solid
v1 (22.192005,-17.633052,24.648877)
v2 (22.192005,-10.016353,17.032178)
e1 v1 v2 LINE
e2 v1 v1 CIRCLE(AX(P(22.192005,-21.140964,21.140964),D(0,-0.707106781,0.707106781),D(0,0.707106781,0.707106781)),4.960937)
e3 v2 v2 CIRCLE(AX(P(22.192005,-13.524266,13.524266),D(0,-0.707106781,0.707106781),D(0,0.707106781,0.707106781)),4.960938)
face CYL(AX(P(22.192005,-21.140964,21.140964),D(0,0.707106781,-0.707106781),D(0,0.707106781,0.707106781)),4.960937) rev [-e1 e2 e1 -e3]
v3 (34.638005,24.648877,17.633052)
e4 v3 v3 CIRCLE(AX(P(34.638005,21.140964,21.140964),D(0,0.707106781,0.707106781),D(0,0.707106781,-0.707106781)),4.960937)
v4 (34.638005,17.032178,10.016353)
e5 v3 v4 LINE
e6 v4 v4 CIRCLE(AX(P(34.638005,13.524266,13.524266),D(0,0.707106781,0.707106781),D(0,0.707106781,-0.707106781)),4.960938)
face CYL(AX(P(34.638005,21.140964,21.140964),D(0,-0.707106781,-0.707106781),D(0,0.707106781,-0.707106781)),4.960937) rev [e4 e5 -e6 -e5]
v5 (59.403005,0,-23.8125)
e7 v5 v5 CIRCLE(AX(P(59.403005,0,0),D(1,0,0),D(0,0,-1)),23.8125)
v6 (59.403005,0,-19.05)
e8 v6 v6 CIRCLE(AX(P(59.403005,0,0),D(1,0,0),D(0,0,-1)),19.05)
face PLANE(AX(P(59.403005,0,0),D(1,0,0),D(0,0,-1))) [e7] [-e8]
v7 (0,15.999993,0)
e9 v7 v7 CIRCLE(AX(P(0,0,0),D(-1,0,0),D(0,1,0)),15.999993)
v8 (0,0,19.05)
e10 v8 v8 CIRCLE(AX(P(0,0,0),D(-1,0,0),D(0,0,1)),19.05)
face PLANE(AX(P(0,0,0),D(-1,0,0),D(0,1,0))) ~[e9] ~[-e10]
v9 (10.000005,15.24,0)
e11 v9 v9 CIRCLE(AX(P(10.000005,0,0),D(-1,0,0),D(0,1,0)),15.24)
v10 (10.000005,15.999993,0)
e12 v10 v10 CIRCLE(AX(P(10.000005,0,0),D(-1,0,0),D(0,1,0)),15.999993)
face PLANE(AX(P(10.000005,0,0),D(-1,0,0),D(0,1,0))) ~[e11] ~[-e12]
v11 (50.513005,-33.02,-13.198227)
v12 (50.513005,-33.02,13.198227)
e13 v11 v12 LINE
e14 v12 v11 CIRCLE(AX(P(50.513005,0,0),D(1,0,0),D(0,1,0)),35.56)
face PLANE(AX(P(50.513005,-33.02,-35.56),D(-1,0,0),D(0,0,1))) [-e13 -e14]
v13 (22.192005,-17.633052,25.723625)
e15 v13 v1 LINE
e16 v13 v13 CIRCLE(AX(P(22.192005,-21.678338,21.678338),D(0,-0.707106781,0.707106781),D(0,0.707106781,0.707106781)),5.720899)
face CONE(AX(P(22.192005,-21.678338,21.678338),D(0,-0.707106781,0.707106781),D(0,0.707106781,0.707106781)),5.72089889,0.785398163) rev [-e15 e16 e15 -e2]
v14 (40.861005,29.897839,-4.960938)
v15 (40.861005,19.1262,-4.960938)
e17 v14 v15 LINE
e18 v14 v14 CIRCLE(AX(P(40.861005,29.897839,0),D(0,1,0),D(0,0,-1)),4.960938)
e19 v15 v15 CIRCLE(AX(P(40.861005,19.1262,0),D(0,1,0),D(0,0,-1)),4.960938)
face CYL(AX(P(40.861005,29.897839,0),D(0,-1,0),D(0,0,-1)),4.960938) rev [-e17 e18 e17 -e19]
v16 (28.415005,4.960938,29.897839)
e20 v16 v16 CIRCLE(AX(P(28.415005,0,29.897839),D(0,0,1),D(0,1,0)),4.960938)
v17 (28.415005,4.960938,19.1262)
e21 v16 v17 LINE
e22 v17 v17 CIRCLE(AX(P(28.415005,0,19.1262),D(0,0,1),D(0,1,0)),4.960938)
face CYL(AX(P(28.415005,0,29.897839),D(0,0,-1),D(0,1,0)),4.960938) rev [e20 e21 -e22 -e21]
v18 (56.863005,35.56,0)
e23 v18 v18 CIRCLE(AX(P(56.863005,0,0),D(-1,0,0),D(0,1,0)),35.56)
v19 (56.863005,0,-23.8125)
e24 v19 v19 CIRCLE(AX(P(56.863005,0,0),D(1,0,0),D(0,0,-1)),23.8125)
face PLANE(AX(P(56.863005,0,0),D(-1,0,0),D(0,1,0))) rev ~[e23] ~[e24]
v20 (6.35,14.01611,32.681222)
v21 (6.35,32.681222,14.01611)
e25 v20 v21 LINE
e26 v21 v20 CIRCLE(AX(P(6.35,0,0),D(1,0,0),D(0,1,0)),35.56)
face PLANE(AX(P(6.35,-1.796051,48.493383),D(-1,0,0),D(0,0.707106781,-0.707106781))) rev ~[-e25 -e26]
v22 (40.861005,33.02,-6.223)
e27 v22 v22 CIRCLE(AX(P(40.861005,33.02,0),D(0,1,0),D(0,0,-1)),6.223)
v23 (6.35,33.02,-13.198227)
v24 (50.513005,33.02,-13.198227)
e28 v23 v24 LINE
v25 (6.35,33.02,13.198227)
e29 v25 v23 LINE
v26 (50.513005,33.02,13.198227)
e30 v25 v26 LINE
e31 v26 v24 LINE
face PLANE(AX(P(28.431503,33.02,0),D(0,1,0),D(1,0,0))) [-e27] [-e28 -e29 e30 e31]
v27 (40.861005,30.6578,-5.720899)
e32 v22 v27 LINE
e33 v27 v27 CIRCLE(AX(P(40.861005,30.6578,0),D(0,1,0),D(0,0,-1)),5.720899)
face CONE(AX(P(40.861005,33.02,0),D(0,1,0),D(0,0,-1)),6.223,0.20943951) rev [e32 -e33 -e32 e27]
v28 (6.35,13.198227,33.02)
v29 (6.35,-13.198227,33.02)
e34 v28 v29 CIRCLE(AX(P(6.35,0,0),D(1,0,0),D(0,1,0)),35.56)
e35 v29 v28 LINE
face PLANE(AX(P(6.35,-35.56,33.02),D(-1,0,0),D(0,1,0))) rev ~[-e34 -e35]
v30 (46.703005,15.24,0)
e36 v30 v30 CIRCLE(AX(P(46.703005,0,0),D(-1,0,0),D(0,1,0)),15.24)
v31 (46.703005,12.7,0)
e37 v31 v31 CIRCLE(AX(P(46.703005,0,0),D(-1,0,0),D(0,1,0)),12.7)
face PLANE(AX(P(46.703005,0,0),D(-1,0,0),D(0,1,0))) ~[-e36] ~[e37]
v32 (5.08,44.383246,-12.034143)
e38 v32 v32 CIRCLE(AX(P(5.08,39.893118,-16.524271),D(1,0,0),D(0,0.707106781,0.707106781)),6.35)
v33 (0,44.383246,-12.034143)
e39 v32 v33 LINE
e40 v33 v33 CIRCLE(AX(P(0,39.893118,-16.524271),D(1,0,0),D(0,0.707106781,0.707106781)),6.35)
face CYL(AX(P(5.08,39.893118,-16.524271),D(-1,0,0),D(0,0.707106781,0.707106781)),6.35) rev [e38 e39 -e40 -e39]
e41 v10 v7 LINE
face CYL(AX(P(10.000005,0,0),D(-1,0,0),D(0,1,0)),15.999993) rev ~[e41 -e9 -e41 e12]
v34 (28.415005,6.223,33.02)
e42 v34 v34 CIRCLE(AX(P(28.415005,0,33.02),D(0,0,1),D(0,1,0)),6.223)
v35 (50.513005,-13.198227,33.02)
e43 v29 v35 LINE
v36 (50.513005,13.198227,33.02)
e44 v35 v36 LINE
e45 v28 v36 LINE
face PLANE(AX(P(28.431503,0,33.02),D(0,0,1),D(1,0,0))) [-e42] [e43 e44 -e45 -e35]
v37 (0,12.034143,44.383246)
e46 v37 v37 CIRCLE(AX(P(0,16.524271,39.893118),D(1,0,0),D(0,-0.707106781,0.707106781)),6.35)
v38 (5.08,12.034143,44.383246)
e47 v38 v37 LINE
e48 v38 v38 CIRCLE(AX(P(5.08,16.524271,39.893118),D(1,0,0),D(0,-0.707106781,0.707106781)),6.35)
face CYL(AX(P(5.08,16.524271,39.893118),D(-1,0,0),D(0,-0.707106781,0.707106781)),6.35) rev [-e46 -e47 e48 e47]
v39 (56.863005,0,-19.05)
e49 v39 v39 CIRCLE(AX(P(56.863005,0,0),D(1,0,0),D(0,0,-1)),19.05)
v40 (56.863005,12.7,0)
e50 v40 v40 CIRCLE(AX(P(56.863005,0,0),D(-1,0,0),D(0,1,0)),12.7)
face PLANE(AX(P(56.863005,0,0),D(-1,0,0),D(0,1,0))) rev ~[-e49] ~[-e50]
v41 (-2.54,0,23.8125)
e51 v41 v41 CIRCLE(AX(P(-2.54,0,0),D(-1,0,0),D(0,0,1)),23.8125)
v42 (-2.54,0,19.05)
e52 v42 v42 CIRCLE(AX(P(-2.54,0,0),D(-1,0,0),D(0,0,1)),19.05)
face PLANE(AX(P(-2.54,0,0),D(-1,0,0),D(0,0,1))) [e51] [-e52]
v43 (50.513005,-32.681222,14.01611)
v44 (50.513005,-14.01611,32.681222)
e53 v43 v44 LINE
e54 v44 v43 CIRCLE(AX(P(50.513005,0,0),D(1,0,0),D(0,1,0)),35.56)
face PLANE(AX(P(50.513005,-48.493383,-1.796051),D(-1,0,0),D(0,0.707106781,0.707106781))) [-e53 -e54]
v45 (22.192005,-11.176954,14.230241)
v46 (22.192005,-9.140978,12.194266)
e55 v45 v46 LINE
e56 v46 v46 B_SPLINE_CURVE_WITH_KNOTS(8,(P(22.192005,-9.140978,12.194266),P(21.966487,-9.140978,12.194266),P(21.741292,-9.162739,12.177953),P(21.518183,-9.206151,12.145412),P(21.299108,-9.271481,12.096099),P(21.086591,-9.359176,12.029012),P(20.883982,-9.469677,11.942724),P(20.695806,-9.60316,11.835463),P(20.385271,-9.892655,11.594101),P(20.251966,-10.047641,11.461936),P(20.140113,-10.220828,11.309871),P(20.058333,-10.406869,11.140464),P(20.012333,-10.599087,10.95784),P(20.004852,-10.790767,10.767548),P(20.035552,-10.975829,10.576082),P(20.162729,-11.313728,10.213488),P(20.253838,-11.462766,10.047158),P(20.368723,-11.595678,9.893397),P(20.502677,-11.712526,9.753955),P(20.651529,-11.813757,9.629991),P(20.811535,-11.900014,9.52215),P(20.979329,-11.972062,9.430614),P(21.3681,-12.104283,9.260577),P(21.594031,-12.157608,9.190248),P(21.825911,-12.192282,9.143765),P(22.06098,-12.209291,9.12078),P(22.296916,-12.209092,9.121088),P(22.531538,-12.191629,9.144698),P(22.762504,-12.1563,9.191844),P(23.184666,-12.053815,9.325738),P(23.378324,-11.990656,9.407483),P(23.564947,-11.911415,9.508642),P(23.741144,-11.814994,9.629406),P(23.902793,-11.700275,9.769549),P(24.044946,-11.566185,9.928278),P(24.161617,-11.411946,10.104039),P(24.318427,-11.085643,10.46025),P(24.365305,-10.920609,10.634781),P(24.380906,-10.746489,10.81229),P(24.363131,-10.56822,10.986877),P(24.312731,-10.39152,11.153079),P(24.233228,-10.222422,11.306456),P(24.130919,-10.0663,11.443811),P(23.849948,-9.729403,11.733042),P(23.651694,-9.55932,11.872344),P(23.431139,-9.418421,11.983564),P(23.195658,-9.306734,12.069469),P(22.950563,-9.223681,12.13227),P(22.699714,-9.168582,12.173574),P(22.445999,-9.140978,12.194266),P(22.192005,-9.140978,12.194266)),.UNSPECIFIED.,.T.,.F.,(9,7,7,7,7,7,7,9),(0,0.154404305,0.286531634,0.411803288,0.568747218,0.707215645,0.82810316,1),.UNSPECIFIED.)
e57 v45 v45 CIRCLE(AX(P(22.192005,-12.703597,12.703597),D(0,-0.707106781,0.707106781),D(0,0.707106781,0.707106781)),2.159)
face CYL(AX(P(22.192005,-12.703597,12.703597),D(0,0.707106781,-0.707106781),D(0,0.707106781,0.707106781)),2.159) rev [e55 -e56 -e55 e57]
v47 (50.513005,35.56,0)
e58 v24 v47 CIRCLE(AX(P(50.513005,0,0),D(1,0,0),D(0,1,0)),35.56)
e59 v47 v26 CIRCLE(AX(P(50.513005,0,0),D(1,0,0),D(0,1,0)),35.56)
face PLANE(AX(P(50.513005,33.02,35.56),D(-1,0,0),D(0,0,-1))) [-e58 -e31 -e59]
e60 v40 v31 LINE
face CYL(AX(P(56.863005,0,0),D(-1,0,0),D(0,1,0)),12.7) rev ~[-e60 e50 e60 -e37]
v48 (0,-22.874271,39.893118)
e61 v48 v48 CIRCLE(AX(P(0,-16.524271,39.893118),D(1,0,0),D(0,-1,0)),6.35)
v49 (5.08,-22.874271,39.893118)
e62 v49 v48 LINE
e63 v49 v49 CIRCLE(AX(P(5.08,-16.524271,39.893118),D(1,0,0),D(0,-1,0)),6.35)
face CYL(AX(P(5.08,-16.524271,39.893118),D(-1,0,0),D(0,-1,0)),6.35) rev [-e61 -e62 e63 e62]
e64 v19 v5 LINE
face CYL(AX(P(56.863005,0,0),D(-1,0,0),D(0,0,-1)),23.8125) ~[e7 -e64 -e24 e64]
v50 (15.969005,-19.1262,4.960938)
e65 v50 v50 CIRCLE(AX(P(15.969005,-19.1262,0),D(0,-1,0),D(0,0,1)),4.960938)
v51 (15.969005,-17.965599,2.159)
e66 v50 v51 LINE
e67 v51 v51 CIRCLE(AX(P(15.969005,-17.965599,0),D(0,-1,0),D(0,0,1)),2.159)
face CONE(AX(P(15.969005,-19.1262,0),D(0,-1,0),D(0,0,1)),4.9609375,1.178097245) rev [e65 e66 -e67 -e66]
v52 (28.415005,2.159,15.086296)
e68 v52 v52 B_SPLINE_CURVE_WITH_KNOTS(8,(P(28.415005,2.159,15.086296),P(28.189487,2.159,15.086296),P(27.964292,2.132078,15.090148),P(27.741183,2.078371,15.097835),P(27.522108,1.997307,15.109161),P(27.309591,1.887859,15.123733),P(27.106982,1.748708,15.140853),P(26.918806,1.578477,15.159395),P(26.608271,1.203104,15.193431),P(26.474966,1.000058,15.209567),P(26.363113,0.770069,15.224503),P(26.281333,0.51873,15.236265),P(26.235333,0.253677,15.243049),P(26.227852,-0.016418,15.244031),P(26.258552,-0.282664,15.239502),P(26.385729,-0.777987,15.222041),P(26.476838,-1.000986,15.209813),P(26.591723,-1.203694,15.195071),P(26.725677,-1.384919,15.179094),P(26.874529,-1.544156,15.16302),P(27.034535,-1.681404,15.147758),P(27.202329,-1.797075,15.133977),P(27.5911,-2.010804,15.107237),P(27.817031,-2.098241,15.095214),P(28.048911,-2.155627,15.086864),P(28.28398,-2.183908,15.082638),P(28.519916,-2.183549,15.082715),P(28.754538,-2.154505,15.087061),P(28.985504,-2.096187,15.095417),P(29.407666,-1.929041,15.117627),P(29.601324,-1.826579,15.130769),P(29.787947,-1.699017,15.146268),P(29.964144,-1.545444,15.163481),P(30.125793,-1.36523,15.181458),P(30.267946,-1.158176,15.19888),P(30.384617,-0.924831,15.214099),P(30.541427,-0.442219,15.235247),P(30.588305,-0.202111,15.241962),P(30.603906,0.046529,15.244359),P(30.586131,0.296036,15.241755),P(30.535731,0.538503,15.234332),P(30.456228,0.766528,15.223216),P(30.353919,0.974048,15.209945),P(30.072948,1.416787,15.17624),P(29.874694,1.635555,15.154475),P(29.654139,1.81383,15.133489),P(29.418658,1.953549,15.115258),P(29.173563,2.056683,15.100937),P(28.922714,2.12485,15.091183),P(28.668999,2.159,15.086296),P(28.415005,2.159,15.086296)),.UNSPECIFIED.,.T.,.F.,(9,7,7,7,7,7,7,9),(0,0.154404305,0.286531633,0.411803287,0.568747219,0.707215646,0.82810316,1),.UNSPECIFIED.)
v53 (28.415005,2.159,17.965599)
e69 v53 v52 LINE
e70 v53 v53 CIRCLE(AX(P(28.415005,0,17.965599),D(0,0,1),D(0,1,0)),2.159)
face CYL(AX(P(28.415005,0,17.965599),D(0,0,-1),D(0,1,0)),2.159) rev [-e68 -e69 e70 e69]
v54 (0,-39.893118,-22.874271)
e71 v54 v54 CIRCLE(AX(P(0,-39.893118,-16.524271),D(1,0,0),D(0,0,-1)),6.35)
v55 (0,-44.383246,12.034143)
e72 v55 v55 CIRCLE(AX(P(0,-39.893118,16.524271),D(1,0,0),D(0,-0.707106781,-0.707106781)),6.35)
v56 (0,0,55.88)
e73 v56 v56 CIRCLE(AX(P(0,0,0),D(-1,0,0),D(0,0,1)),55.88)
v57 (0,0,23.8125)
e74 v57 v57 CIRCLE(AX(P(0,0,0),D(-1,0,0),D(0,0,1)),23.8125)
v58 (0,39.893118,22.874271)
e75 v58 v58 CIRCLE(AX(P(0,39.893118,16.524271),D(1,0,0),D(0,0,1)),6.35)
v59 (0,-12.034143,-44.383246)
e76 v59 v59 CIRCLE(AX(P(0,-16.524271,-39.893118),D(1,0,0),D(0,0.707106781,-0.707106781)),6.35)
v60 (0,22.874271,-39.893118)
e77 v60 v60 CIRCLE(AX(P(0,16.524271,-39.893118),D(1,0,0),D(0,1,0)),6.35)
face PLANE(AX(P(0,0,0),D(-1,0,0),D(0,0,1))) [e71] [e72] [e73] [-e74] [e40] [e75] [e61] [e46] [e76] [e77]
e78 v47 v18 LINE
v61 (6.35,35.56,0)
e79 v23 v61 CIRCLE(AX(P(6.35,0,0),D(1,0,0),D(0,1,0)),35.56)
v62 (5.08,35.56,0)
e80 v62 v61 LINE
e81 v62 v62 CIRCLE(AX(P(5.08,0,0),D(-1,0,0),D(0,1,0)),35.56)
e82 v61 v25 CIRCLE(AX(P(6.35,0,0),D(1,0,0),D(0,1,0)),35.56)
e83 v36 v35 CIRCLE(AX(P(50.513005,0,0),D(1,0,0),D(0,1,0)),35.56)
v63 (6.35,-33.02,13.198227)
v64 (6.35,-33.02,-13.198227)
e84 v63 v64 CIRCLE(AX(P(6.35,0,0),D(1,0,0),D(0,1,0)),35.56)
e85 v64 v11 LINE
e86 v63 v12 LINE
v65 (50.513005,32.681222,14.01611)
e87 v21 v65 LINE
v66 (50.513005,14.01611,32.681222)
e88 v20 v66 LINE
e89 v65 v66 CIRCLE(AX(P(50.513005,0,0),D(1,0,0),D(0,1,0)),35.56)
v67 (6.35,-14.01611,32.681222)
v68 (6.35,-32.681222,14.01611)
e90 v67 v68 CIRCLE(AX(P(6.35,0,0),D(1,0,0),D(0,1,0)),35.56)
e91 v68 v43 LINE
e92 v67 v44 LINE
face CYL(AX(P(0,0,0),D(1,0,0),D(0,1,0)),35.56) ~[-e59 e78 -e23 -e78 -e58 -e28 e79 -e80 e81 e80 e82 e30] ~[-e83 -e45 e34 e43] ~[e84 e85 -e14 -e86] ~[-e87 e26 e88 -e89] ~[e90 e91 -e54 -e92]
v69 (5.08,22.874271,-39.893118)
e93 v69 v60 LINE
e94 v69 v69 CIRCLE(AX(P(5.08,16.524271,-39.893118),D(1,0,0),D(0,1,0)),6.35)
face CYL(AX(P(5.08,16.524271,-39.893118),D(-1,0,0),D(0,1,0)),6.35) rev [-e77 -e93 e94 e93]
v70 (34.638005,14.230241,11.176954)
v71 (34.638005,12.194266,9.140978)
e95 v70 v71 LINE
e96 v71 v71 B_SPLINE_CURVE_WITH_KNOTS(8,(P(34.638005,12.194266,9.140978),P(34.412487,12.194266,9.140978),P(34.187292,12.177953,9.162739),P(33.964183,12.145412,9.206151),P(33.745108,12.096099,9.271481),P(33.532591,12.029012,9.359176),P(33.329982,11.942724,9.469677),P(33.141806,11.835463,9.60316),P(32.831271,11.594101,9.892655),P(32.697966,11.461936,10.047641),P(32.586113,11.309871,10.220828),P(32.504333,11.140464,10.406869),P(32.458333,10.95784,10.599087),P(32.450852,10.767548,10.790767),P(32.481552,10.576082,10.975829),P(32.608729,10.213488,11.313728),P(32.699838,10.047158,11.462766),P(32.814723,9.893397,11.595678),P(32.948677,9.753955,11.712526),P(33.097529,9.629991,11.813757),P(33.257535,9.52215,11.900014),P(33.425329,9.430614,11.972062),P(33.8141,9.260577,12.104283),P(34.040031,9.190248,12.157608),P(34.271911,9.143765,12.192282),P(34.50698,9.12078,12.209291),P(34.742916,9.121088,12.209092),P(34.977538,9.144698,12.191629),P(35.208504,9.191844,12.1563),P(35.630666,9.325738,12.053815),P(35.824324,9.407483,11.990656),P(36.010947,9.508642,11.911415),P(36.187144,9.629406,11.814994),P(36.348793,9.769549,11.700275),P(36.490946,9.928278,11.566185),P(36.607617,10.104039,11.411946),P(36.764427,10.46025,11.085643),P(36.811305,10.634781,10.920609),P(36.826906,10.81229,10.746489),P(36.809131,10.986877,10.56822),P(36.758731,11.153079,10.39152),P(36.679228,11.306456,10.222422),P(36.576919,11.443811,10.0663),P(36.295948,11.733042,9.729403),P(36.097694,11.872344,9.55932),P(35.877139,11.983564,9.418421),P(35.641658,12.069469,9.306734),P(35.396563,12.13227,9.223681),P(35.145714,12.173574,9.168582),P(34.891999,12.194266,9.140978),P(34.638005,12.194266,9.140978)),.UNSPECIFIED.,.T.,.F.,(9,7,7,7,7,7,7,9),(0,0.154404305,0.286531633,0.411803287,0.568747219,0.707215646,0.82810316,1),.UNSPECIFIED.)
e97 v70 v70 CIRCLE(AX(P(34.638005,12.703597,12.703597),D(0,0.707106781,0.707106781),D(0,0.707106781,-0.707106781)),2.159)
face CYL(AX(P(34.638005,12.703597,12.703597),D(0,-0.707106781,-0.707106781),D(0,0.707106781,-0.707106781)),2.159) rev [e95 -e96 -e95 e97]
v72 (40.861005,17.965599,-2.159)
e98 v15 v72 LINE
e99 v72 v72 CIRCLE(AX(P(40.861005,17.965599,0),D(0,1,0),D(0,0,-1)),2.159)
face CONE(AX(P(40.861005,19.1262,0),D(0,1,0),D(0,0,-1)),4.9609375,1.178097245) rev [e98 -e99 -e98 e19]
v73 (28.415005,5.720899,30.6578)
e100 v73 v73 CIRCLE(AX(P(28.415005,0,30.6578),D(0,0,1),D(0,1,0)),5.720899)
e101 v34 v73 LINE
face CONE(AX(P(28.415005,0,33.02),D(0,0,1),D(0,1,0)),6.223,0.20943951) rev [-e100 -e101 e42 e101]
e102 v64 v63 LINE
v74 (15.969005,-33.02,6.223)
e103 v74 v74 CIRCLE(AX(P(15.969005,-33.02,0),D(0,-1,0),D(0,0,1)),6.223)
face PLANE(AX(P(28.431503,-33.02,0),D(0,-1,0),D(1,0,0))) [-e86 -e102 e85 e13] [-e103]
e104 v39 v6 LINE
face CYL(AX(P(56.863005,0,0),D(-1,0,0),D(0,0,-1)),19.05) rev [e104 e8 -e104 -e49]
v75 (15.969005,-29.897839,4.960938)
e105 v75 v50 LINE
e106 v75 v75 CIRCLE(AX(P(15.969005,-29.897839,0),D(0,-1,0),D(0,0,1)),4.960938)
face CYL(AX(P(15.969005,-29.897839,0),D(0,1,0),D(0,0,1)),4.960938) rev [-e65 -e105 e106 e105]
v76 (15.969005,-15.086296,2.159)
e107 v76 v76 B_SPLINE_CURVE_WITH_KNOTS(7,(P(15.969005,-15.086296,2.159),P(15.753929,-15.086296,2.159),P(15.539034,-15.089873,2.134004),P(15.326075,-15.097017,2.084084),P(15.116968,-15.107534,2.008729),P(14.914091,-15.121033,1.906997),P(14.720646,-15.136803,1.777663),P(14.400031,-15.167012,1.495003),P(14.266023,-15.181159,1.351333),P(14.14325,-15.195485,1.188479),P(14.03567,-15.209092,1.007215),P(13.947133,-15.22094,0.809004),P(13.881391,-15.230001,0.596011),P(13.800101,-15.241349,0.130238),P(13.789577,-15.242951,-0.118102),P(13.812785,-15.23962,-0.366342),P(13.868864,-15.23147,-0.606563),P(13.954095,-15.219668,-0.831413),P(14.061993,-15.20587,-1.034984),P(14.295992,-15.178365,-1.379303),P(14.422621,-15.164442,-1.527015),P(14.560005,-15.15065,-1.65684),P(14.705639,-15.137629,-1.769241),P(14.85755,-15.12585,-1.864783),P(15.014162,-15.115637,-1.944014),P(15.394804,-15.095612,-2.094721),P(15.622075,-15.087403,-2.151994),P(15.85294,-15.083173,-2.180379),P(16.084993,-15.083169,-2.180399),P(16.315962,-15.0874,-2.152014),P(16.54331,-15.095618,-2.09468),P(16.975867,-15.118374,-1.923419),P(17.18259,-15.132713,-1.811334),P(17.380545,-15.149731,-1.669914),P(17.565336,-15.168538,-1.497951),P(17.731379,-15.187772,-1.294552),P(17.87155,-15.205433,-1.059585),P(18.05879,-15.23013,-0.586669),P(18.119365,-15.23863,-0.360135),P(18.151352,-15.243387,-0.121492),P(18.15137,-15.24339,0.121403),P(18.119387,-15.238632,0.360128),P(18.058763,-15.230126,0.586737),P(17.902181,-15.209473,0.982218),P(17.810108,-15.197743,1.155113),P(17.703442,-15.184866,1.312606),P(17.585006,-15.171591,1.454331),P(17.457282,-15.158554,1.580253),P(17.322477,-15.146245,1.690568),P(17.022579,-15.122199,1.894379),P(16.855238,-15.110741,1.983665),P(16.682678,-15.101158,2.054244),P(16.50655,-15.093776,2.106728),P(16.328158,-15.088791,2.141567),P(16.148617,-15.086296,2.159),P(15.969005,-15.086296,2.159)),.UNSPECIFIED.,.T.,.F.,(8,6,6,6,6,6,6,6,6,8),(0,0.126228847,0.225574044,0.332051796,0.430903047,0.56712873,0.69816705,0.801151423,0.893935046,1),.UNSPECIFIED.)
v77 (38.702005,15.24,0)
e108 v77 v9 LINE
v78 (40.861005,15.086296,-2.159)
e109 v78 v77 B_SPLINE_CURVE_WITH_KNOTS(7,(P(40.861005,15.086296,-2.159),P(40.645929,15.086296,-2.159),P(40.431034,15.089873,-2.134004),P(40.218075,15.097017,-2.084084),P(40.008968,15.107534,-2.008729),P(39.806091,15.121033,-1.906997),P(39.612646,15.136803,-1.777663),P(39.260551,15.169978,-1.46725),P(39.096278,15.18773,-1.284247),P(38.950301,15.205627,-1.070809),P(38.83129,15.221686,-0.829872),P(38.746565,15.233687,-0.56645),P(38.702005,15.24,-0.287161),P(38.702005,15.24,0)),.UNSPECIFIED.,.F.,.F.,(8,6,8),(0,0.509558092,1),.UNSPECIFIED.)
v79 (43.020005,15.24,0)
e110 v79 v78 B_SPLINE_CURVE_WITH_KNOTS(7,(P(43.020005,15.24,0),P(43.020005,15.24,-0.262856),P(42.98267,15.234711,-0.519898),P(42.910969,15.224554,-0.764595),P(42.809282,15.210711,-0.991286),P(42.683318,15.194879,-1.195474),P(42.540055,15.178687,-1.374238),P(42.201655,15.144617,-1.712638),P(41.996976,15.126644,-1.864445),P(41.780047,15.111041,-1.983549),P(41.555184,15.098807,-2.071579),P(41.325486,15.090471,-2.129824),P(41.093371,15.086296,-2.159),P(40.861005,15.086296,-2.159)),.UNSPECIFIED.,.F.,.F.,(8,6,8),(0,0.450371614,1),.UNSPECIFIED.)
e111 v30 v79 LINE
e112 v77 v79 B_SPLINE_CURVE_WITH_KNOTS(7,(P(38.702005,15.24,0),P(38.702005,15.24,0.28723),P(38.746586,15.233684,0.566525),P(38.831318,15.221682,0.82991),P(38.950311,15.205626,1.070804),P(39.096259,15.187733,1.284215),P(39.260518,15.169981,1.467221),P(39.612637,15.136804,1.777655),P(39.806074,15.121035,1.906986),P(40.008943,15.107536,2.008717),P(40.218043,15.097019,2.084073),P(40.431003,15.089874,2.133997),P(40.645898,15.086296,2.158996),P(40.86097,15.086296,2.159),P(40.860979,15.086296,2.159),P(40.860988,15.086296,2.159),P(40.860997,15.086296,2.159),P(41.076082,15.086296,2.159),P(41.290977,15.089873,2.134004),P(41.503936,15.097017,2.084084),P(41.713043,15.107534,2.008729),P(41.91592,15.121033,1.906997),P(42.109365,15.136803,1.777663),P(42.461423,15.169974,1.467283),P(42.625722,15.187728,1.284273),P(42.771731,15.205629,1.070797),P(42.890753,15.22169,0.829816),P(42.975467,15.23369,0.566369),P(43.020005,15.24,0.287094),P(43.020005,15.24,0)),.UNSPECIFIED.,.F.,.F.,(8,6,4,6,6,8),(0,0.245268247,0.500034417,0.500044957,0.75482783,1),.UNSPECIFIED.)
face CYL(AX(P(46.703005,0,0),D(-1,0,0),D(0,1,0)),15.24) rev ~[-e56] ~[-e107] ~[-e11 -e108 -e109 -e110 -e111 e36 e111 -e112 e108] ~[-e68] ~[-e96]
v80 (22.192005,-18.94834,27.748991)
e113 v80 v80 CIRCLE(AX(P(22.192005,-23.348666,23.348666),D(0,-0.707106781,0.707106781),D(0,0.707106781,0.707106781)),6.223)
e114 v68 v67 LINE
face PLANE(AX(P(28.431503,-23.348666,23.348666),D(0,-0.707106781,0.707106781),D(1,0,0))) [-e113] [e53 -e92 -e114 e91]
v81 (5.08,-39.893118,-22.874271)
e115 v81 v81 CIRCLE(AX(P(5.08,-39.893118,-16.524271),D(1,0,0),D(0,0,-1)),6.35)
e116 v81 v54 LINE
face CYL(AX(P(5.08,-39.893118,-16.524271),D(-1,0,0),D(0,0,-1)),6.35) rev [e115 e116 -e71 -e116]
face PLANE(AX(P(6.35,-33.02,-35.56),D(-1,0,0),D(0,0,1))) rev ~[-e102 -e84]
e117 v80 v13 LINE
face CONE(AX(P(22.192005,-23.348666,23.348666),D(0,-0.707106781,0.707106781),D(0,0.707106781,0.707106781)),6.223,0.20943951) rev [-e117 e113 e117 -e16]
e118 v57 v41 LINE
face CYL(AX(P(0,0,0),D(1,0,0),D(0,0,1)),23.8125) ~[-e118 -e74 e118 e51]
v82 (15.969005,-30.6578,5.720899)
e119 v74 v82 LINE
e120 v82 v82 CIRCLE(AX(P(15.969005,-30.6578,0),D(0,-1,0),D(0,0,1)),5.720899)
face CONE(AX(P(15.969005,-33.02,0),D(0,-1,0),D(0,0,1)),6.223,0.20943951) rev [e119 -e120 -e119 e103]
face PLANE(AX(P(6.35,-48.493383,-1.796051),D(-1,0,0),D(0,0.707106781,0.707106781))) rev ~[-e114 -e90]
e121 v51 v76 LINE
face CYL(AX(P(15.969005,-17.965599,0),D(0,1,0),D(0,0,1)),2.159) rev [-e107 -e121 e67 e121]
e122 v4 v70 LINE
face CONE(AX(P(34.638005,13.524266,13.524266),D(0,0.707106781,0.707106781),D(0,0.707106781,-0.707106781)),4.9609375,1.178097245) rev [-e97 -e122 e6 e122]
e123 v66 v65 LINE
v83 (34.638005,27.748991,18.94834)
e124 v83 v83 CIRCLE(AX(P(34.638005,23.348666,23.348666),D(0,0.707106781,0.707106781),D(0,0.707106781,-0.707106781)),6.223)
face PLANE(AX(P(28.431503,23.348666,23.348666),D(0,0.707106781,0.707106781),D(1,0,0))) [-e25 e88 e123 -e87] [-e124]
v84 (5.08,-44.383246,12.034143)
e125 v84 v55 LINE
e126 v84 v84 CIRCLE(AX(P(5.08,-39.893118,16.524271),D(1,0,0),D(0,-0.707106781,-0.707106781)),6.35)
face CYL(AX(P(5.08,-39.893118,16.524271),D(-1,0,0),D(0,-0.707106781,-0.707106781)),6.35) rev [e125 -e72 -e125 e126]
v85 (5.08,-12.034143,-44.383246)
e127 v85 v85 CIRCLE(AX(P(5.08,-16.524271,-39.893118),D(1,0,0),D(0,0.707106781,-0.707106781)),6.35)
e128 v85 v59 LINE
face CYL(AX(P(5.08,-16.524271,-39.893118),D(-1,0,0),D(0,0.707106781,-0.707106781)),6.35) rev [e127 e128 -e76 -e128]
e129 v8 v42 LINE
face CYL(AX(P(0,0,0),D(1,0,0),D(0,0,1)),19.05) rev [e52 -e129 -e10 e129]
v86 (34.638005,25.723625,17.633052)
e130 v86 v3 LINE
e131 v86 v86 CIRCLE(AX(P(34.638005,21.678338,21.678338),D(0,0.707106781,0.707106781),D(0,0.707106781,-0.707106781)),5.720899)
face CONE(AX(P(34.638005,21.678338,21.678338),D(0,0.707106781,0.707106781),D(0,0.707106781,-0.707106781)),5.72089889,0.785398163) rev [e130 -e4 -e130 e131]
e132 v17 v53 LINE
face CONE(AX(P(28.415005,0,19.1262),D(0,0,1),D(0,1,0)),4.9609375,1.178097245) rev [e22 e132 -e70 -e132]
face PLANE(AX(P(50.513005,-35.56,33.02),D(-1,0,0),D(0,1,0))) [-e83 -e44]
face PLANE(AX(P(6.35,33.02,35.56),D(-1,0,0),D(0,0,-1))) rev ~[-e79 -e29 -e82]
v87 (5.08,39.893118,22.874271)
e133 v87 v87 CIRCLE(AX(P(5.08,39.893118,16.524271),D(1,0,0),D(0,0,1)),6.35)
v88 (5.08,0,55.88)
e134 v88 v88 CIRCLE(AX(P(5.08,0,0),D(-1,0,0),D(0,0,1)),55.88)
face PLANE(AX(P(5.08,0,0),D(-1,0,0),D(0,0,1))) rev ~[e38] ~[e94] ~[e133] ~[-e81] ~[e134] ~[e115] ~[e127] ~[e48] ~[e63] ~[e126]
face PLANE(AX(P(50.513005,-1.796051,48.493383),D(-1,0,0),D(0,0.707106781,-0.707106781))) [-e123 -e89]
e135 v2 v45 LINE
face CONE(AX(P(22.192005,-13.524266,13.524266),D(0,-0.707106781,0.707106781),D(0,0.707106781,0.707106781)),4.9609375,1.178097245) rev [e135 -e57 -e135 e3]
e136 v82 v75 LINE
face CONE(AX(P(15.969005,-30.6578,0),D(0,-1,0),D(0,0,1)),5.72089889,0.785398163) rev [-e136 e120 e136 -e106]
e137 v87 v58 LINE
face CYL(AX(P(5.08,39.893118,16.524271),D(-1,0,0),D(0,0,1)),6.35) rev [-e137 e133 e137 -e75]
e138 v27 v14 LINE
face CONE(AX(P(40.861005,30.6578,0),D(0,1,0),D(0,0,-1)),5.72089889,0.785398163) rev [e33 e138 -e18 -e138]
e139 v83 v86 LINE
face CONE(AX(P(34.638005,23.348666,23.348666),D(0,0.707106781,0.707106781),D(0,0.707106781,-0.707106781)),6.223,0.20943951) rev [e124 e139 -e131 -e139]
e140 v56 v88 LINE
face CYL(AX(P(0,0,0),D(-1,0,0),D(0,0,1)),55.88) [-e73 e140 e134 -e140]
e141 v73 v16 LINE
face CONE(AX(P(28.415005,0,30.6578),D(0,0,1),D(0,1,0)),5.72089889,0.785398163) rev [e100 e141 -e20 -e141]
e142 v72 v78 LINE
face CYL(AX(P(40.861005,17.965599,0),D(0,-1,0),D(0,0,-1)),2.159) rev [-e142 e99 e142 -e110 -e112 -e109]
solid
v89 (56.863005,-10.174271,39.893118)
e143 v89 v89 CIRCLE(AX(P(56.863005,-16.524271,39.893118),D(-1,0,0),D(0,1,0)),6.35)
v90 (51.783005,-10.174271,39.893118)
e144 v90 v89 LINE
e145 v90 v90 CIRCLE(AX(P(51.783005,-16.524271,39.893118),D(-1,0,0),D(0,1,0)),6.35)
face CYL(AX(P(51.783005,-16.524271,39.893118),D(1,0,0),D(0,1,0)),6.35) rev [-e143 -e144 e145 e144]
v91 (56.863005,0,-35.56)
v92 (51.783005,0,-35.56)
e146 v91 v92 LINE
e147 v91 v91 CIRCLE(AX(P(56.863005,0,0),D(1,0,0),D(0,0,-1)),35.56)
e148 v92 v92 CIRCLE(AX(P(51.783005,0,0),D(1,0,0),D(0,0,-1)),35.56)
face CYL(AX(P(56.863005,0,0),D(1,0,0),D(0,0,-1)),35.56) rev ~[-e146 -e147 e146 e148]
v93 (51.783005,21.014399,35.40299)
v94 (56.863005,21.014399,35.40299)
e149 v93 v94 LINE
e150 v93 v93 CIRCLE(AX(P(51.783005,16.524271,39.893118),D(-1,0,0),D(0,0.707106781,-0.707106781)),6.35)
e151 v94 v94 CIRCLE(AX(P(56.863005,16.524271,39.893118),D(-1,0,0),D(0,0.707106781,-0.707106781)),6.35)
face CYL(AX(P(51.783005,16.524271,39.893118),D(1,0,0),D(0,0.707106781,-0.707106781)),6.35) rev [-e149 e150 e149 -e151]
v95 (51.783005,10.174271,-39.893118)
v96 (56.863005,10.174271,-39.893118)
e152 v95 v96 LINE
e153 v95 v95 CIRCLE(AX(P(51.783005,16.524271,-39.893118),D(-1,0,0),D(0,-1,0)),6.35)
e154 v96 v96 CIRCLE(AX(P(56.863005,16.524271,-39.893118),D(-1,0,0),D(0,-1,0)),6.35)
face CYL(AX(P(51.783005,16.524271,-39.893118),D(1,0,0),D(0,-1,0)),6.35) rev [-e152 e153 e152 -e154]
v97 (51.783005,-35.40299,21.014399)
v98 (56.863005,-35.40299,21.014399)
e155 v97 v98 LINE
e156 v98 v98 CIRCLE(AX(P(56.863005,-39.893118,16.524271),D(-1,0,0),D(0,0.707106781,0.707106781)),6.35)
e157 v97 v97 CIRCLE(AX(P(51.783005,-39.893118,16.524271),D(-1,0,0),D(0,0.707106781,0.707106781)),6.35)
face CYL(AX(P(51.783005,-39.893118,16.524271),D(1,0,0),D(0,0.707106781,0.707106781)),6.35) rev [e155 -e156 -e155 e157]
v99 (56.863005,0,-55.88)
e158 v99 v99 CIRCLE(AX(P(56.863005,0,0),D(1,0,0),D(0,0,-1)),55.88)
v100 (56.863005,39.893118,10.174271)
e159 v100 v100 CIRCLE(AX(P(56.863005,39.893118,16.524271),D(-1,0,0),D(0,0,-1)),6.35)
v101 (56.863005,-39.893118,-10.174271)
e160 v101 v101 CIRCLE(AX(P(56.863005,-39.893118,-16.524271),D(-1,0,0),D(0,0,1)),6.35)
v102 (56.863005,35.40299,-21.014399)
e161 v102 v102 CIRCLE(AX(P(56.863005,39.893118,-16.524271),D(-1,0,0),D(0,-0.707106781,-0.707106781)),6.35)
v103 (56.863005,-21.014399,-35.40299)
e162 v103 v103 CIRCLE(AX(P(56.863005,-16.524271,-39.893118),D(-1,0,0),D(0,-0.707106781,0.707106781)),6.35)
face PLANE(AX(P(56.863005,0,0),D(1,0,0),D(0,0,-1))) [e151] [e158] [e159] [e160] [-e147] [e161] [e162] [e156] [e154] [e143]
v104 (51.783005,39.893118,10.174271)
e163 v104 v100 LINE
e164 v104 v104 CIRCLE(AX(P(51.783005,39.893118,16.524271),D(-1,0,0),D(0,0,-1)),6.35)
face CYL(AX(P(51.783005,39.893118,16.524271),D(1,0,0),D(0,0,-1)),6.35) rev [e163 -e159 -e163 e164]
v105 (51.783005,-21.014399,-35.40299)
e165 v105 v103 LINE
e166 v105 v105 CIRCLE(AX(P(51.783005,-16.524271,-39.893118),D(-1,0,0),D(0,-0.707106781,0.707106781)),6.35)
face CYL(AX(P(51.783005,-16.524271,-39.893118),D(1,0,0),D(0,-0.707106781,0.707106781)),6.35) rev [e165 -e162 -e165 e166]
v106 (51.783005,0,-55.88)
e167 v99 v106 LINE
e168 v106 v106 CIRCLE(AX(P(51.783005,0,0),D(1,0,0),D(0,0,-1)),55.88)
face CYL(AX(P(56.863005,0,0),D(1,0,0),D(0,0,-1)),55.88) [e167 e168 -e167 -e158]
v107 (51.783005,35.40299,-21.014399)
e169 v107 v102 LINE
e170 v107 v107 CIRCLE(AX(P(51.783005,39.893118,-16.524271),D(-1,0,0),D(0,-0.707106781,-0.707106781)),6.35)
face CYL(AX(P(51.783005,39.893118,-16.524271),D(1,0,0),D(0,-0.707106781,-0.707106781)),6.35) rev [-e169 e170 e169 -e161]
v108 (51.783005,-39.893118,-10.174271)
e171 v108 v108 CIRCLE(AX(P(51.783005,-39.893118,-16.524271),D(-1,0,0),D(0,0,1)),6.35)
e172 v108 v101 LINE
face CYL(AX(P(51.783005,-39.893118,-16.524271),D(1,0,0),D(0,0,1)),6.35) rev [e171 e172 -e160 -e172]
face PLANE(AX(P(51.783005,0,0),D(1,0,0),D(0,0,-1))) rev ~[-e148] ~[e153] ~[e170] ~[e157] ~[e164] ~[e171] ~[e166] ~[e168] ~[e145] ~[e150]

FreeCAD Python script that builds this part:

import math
import FreeCAD as App
import Part
import Sketcher
from FreeCAD import Vector
Q = App.Units.Quantity


def add_polygon(sketch, points):
    """Adds a closed chain of lines whose ends are joined by coincident constraints."""
    first, n = sketch.GeometryCount, len(points)
    for a, b in zip(points, points[1:] + points[:1]):
        sketch.addGeometry(Part.LineSegment(App.Vector(*a, 0), App.Vector(*b, 0)), False)
    for i in range(n):
        sketch.addConstraint(Sketcher.Constraint("Coincident", first + i, 2, first + (i + 1) % n, 1))

doc = App.newDocument("Part")
body = doc.addObject("PartDesign::Body", "Body")

# Sketch on XY plane
sketch1 = body.newObject("Sketcher::SketchObject", "Sketch")
sketch1.AttachmentSupport = (doc.getObject("XY_Plane"), [""])
sketch1.MapMode = "FlatFace"
add_polygon(sketch1, [(10, 15.2), (46.7, 15.2), (46.7, 12.7), (56.9, 12.7), (56.9, 35.6), (0, 35.6), (0, 16), (10, 16)])  # lines 0-7
sketch1.addConstraint([
    Sketcher.Constraint("Horizontal", 0),
    Sketcher.Constraint("Vertical", 1),
    Sketcher.Constraint("Horizontal", 2),
    Sketcher.Constraint("Vertical", 3),
    Sketcher.Constraint("Horizontal", 4),
    Sketcher.Constraint("Vertical", 5),
    Sketcher.Constraint("Horizontal", 6),
    Sketcher.Constraint("Vertical", 7),
    Sketcher.Constraint("PointOnObject", 4, 2, -2),
    Sketcher.Constraint("DistanceX", 2, 1, 2, 2, Q("0.4 in")),
    Sketcher.Constraint("DistanceY", 1, 2, 1, 1, Q("0.1 in")),
    Sketcher.Constraint("DistanceY", 3, 1, 3, 2, Q("0.9 in")),
    Sketcher.Constraint("DistanceY", -1, 1, 0, 2, Q("0.6 in")),
    Sketcher.Constraint("DistanceX", 0, 1, 0, 2, Q("1.445 in")),
    Sketcher.Constraint("DistanceX", 4, 2, 4, 1, Q("56.863005 mm")),
    Sketcher.Constraint("DistanceY", 5, 2, 5, 1, Q("19.560007 mm")),
])
revolution = body.newObject("PartDesign::Revolution", "Revolution")
revolution.Profile = sketch1
revolution.ReferenceAxis = (sketch1, ["H_Axis"])
revolution.Angle = 360

# Sketch on YZ plane
sketch2 = body.newObject("Sketcher::SketchObject", "Sketch001")
sketch2.AttachmentSupport = (doc.getObject("YZ_Plane"), [""])
sketch2.MapMode = "FlatFace"
sketch2.addGeometry([
    Part.Circle(Vector(0, 0, 0), Vector(0, 0, 1), 24),
    Part.Circle(Vector(0, 0, 0), Vector(0, 0, 1), 19),
], False)
sketch2.addConstraint([
    Sketcher.Constraint("Coincident", 0, 3, -1, 1),
    Sketcher.Constraint("Coincident", 1, 3, -1, 1),
    Sketcher.Constraint("Diameter", 1, Q("1.5 in")),
    Sketcher.Constraint("Diameter", 0, Q("1.875 in")),
])
pad1 = body.newObject("PartDesign::Pad", "Pad")
pad1.Profile = sketch2
pad1.Length = Q("0.1 in")
pad1.Reversed = True

# Sketch on YZ plane
sketch3 = body.newObject("Sketcher::SketchObject", "Sketch002")
sketch3.AttachmentSupport = (doc.getObject("YZ_Plane"), [""])
sketch3.MapMode = "FlatFace"
sketch3.AttachmentOffset = App.Placement(Vector(0, 0, 56.863005), App.Rotation())
sketch3.addGeometry([
    Part.Circle(Vector(0, 0, 0), Vector(0, 0, 1), 24),
    Part.Circle(Vector(0, 0, 0), Vector(0, 0, 1), 19),
], False)
sketch3.addConstraint([
    Sketcher.Constraint("Coincident", 0, 3, -1, 1),
    Sketcher.Constraint("Coincident", 1, 3, -1, 1),
    Sketcher.Constraint("Diameter", 1, Q("1.5 in")),
    Sketcher.Constraint("Diameter", 0, Q("1.875 in")),
])
pad2 = body.newObject("PartDesign::Pad", "Pad001")
pad2.Profile = sketch3
pad2.Length = Q("0.1 in")

# Sketch on XZ plane
sketch4 = body.newObject("Sketcher::SketchObject", "Sketch003")
sketch4.AttachmentSupport = (doc.getObject("XZ_Plane"), [""])
sketch4.MapMode = "FlatFace"
sketch4.AttachmentOffset = App.Placement(Vector(0, 0, -1.3 * 25.4), App.Rotation())
add_polygon(sketch4, [(6, -36), (6, 36), (51, 36), (51, -36)])  # lines 0-3
sketch4.addConstraint([
    Sketcher.Constraint("Vertical", 0),
    Sketcher.Constraint("Horizontal", 1),
    Sketcher.Constraint("Vertical", 2),
    Sketcher.Constraint("Horizontal", 3),
    Sketcher.Constraint("DistanceY", 0, 1, 0, 2, Q("2.8 in")),
    Sketcher.Constraint("DistanceY", -1, 1, 0, 2, Q("1.4 in")),
    Sketcher.Constraint("DistanceX", -1, 1, 0, 2, Q("0.25 in")),
    Sketcher.Constraint("DistanceX", 1, 1, 1, 2, Q("44.163005 mm")),
])
pocket1 = body.newObject("PartDesign::Pocket", "Pocket")
pocket1.Profile = sketch4
pocket1.Length = Q("0.2 in")
doc.recompute()

polarpattern = body.newObject("PartDesign::PolarPattern", "PolarPattern")
polarpattern.Originals = [pocket1]
polarpattern.Axis = (doc.getObject("X_Axis"), [""])
polarpattern.Angle = 180
polarpattern.Occurrences = 5
body.Tip = polarpattern

# Sketch on YZ plane
sketch5 = body.newObject("Sketcher::SketchObject", "Sketch004")
sketch5.AttachmentSupport = (doc.getObject("YZ_Plane"), [""])
sketch5.MapMode = "FlatFace"
sketch5.AttachmentOffset = App.Placement(Vector(0, 0, 40.861005), App.Rotation())
sketch5.addGeometry([
    Part.LineSegment(Vector(33, 0, 0), Vector(33, -6.2, 0)),  # 0
    Part.LineSegment(Vector(33, -6.2, 0), Vector(30.7, -5.7, 0)),  # 1
    Part.LineSegment(Vector(30.7, -5.7, 0), Vector(29.9, -5, 0)),  # 2
    Part.LineSegment(Vector(29.9, -5, 0), Vector(19.1, -5, 0)),  # 3
    Part.LineSegment(Vector(19.1, -5, 0), Vector(18, -2.2, 0)),  # 4
    Part.LineSegment(Vector(18, -2.2, 0), Vector(15.1, -2.2, 0)),  # 5
    Part.ArcOfCircle(Part.Circle(Vector(0, 0, 0), Vector(0, 0, 1), 15.2), math.radians(-8.14), math.radians(0)),  # 6
    Part.LineSegment(Vector(15.2, 0, 0), Vector(33, 0, 0)),  # 7
], False)
sketch5.addConstraint([
    Sketcher.Constraint("Coincident", 0, 2, 1, 1),
    Sketcher.Constraint("Coincident", 1, 2, 2, 1),
    Sketcher.Constraint("Coincident", 2, 2, 3, 1),
    Sketcher.Constraint("Coincident", 3, 2, 4, 1),
    Sketcher.Constraint("Coincident", 4, 2, 5, 1),
    Sketcher.Constraint("Coincident", 5, 2, 6, 1),
    Sketcher.Constraint("Coincident", 6, 2, 7, 1),
    Sketcher.Constraint("Coincident", 7, 2, 0, 1),
    Sketcher.Constraint("Vertical", 0),
    Sketcher.Constraint("Horizontal", 3),
    Sketcher.Constraint("Horizontal", 5),
    Sketcher.Constraint("Horizontal", 7),
    Sketcher.Constraint("Coincident", 6, 3, -1, 1),
    Sketcher.Constraint("PointOnObject", 6, 2, -1),
    Sketcher.Constraint("Radius", 6, Q("0.6 in")),
    Sketcher.Constraint("DistanceX", 7, 1, 7, 2, Q("0.7 in")),
    Sketcher.Constraint("Angle", 1, Q("168 deg")),
    Sketcher.Constraint("Angle", 2, Q("135 deg")),
    Sketcher.Constraint("Angle", 4, Q("112.5 deg")),
    Sketcher.Constraint("DistanceY", 0, 2, 0, 1, Q("0.245 in")),
    Sketcher.Constraint("DistanceY", 0, 2, 4, 2, Q("0.16 in")),
    Sketcher.Constraint("DistanceX", -1, 1, 1, 2, Q("1.207 in")),
    Sketcher.Constraint("DistanceX", -1, 1, 3, 2, Q("0.753 in")),
    Sketcher.Constraint("DistanceX", 3, 2, 3, 1, Q("10.771639 mm")),
])
groove = body.newObject("PartDesign::Groove", "Groove")
groove.Profile = sketch5
groove.ReferenceAxis = (sketch5, ["H_Axis"])
groove.Angle = 360

# Sketch on YZ plane
sketch6 = body.newObject("Sketcher::SketchObject", "Sketch005")
sketch6.AttachmentSupport = (doc.getObject("YZ_Plane"), [""])
sketch6.MapMode = "FlatFace"
sketch6.AttachmentOffset = App.Placement(Vector(0, 0, 34.638005), App.Rotation())
sketch6.addGeometry([
    Part.LineSegment(Vector(23.3, 23.3, 0), Vector(27.7, 18.9, 0)),  # 0
    Part.LineSegment(Vector(27.7, 18.9, 0), Vector(25.7, 17.6, 0)),  # 1
    Part.LineSegment(Vector(25.7, 17.6, 0), Vector(24.6, 17.6, 0)),  # 2
    Part.LineSegment(Vector(24.6, 17.6, 0), Vector(17, 10, 0)),  # 3
    Part.LineSegment(Vector(17, 10, 0), Vector(14.2, 11.2, 0)),  # 4
    Part.LineSegment(Vector(14.2, 11.2, 0), Vector(12.2, 9.1, 0)),  # 5
    Part.ArcOfCircle(Part.Circle(Vector(0, 0, 0), Vector(0, 0, 1), 15.2), math.radians(36.86), math.radians(45)),  # 6
    Part.LineSegment(Vector(10.8, 10.8, 0), Vector(23.3, 23.3, 0)),  # 7
], False)
sketch6.addGeometry(Part.LineSegment(Vector(0, 0, 0), Vector(23.3, 23.3, 0)), True)  # axis
sketch6.addConstraint([
    Sketcher.Constraint("Coincident", 0, 2, 1, 1),
    Sketcher.Constraint("Coincident", 1, 2, 2, 1),
    Sketcher.Constraint("Coincident", 2, 2, 3, 1),
    Sketcher.Constraint("Coincident", 3, 2, 4, 1),
    Sketcher.Constraint("Coincident", 4, 2, 5, 1),
    Sketcher.Constraint("Coincident", 5, 2, 6, 1),
    Sketcher.Constraint("Coincident", 6, 2, 7, 1),
    Sketcher.Constraint("Coincident", 7, 2, 0, 1),
    Sketcher.Constraint("Horizontal", 2),
    Sketcher.Constraint("Coincident", 6, 3, -1, 1),
    Sketcher.Constraint("Coincident", 8, 1, -1, 1),
    Sketcher.Constraint("Coincident", 8, 2, 7, 2),
    Sketcher.Constraint("Perpendicular", 0, 3),
    Sketcher.Constraint("Parallel", 3, 5),
    Sketcher.Constraint("Parallel", 5, 7),
    Sketcher.Constraint("Parallel", 7, 8),
    Sketcher.Constraint("Radius", 6, Q("0.6 in")),
    Sketcher.Constraint("Angle", 0, Q("-45 deg")),
    Sketcher.Constraint("Angle", 1, Q("-147 deg")),
    Sketcher.Constraint("Distance", 7, Q("0.7 in")),
    Sketcher.Constraint("Angle", 4, Q("157.5 deg")),
    Sketcher.Constraint("Distance", 0, Q("0.245 in")),
    Sketcher.Constraint("DistanceX", 3, 2, 2, 2, Q("7.616699 mm")),
    Sketcher.Constraint("DistanceY", 3, 2, 4, 2, Q("1.160601 mm")),
    Sketcher.Constraint("DistanceX", 2, 2, 2, 1, Q("1.074748 mm")),
    Sketcher.Constraint("DistanceY", -1, 1, 1, 2, Q("17.633052 mm")),
])
groove2 = body.newObject("PartDesign::Groove", "Groove001")
groove2.Profile = sketch6
groove2.ReferenceAxis = (sketch6, ["Axis0"])
groove2.Angle = 360

# Sketch on YZ plane
sketch7 = body.newObject("Sketcher::SketchObject", "Sketch006")
sketch7.AttachmentSupport = (doc.getObject("YZ_Plane"), [""])
sketch7.MapMode = "FlatFace"
sketch7.AttachmentOffset = App.Placement(Vector(0, 0, 28.415005), App.Rotation())
sketch7.addGeometry([
    Part.LineSegment(Vector(0, 33, 0), Vector(6.2, 33, 0)),  # 0
    Part.LineSegment(Vector(6.2, 33, 0), Vector(5.7, 30.7, 0)),  # 1
    Part.LineSegment(Vector(5.7, 30.7, 0), Vector(5, 29.9, 0)),  # 2
    Part.LineSegment(Vector(5, 29.9, 0), Vector(5, 19.1, 0)),  # 3
    Part.LineSegment(Vector(5, 19.1, 0), Vector(2.2, 18, 0)),  # 4
    Part.LineSegment(Vector(2.2, 18, 0), Vector(2.2, 15.1, 0)),  # 5
    Part.ArcOfCircle(Part.Circle(Vector(0, 0, 0), Vector(0, 0, 1), 15.2), math.radians(81.86), math.radians(90)),  # 6
    Part.LineSegment(Vector(0, 15.2, 0), Vector(0, 33, 0)),  # 7
], False)
sketch7.addConstraint([
    Sketcher.Constraint("Coincident", 0, 2, 1, 1),
    Sketcher.Constraint("Coincident", 1, 2, 2, 1),
    Sketcher.Constraint("Coincident", 2, 2, 3, 1),
    Sketcher.Constraint("Coincident", 3, 2, 4, 1),
    Sketcher.Constraint("Coincident", 4, 2, 5, 1),
    Sketcher.Constraint("Coincident", 5, 2, 6, 1),
    Sketcher.Constraint("Coincident", 6, 2, 7, 1),
    Sketcher.Constraint("Coincident", 7, 2, 0, 1),
    Sketcher.Constraint("Horizontal", 0),
    Sketcher.Constraint("Vertical", 3),
    Sketcher.Constraint("Vertical", 5),
    Sketcher.Constraint("Vertical", 7),
    Sketcher.Constraint("Coincident", 6, 3, -1, 1),
    Sketcher.Constraint("PointOnObject", 6, 2, -2),
    Sketcher.Constraint("Radius", 6, Q("0.6 in")),
    Sketcher.Constraint("DistanceY", 7, 1, 7, 2, Q("0.7 in")),
    Sketcher.Constraint("Angle", 1, Q("-102 deg")),
    Sketcher.Constraint("Angle", 2, Q("-135 deg")),
    Sketcher.Constraint("Angle", 4, Q("-157.5 deg")),
    Sketcher.Constraint("DistanceX", 0, 1, 0, 2, Q("0.245 in")),
    Sketcher.Constraint("DistanceX", 4, 2, 0, 2, Q("0.16 in")),
    Sketcher.Constraint("DistanceY", -1, 1, 1, 2, Q("1.207 in")),
    Sketcher.Constraint("DistanceY", -1, 1, 3, 2, Q("0.753 in")),
    Sketcher.Constraint("DistanceY", 3, 2, 3, 1, Q("10.771639 mm")),
])
groove3 = body.newObject("PartDesign::Groove", "Groove002")
groove3.Profile = sketch7
groove3.ReferenceAxis = (sketch7, ["V_Axis"])
groove3.Angle = 360

# Sketch on YZ plane
sketch8 = body.newObject("Sketcher::SketchObject", "Sketch007")
sketch8.AttachmentSupport = (doc.getObject("YZ_Plane"), [""])
sketch8.MapMode = "FlatFace"
sketch8.AttachmentOffset = App.Placement(Vector(0, 0, 22.192005), App.Rotation())
sketch8.addGeometry([
    Part.LineSegment(Vector(-23.3, 23.3, 0), Vector(-18.9, 27.7, 0)),  # 0
    Part.LineSegment(Vector(-18.9, 27.7, 0), Vector(-17.6, 25.7, 0)),  # 1
    Part.LineSegment(Vector(-17.6, 25.7, 0), Vector(-17.6, 24.6, 0)),  # 2
    Part.LineSegment(Vector(-17.6, 24.6, 0), Vector(-10, 17, 0)),  # 3
    Part.LineSegment(Vector(-10, 17, 0), Vector(-11.2, 14.2, 0)),  # 4
    Part.LineSegment(Vector(-11.2, 14.2, 0), Vector(-9.1, 12.2, 0)),  # 5
    Part.ArcOfCircle(Part.Circle(Vector(0, 0, 0), Vector(0, 0, 1), 15.2), math.radians(126.86), math.radians(135)),  # 6
    Part.LineSegment(Vector(-10.8, 10.8, 0), Vector(-23.3, 23.3, 0)),  # 7
], False)
sketch8.addGeometry(Part.LineSegment(Vector(0, 0, 0), Vector(-23.3, 23.3, 0)), True)  # axis
sketch8.addConstraint([
    Sketcher.Constraint("Coincident", 0, 2, 1, 1),
    Sketcher.Constraint("Coincident", 1, 2, 2, 1),
    Sketcher.Constraint("Coincident", 2, 2, 3, 1),
    Sketcher.Constraint("Coincident", 3, 2, 4, 1),
    Sketcher.Constraint("Coincident", 4, 2, 5, 1),
    Sketcher.Constraint("Coincident", 5, 2, 6, 1),
    Sketcher.Constraint("Coincident", 6, 2, 7, 1),
    Sketcher.Constraint("Coincident", 7, 2, 0, 1),
    Sketcher.Constraint("Vertical", 2),
    Sketcher.Constraint("Coincident", 6, 3, -1, 1),
    Sketcher.Constraint("Coincident", 8, 1, -1, 1),
    Sketcher.Constraint("Coincident", 8, 2, 7, 2),
    Sketcher.Constraint("Perpendicular", 0, 3),
    Sketcher.Constraint("Parallel", 3, 5),
    Sketcher.Constraint("Parallel", 5, 7),
    Sketcher.Constraint("Parallel", 7, 8),
    Sketcher.Constraint("Radius", 6, Q("0.6 in")),
    Sketcher.Constraint("Angle", 0, Q("45 deg")),
    Sketcher.Constraint("Angle", 1, Q("-57 deg")),
    Sketcher.Constraint("Distance", 7, Q("0.7 in")),
    Sketcher.Constraint("Angle", 4, Q("-112.5 deg")),
    Sketcher.Constraint("Distance", 0, Q("0.245 in")),
    Sketcher.Constraint("DistanceX", 2, 2, 3, 2, Q("7.616699 mm")),
    Sketcher.Constraint("DistanceX", 4, 2, 3, 2, Q("1.160601 mm")),
    Sketcher.Constraint("DistanceY", 2, 2, 2, 1, Q("1.074748 mm")),
    Sketcher.Constraint("DistanceX", 1, 2, -1, 1, Q("17.633052 mm")),
])
groove4 = body.newObject("PartDesign::Groove", "Groove003")
groove4.Profile = sketch8
groove4.ReferenceAxis = (sketch8, ["Axis0"])
groove4.Angle = 360

# Sketch on YZ plane
sketch9 = body.newObject("Sketcher::SketchObject", "Sketch008")
sketch9.AttachmentSupport = (doc.getObject("YZ_Plane"), [""])
sketch9.MapMode = "FlatFace"
sketch9.AttachmentOffset = App.Placement(Vector(0, 0, 15.969005), App.Rotation())
sketch9.addGeometry([
    Part.LineSegment(Vector(-33, 0, 0), Vector(-33, 6.2, 0)),  # 0
    Part.LineSegment(Vector(-33, 6.2, 0), Vector(-30.7, 5.7, 0)),  # 1
    Part.LineSegment(Vector(-30.7, 5.7, 0), Vector(-29.9, 5, 0)),  # 2
    Part.LineSegment(Vector(-29.9, 5, 0), Vector(-19.1, 5, 0)),  # 3
    Part.LineSegment(Vector(-19.1, 5, 0), Vector(-18, 2.2, 0)),  # 4
    Part.LineSegment(Vector(-18, 2.2, 0), Vector(-15.1, 2.2, 0)),  # 5
    Part.ArcOfCircle(Part.Circle(Vector(0, 0, 0), Vector(0, 0, 1), 15.2), math.radians(171.86), math.radians(180)),  # 6
    Part.LineSegment(Vector(-15.2, 0, 0), Vector(-33, 0, 0)),  # 7
], False)
sketch9.addConstraint([
    Sketcher.Constraint("Coincident", 0, 2, 1, 1),
    Sketcher.Constraint("Coincident", 1, 2, 2, 1),
    Sketcher.Constraint("Coincident", 2, 2, 3, 1),
    Sketcher.Constraint("Coincident", 3, 2, 4, 1),
    Sketcher.Constraint("Coincident", 4, 2, 5, 1),
    Sketcher.Constraint("Coincident", 5, 2, 6, 1),
    Sketcher.Constraint("Coincident", 6, 2, 7, 1),
    Sketcher.Constraint("Coincident", 7, 2, 0, 1),
    Sketcher.Constraint("Vertical", 0),
    Sketcher.Constraint("Horizontal", 3),
    Sketcher.Constraint("Horizontal", 5),
    Sketcher.Constraint("Horizontal", 7),
    Sketcher.Constraint("Coincident", 6, 3, -1, 1),
    Sketcher.Constraint("PointOnObject", 6, 2, -1),
    Sketcher.Constraint("Radius", 6, Q("0.6 in")),
    Sketcher.Constraint("DistanceX", 7, 2, 7, 1, Q("0.7 in")),
    Sketcher.Constraint("Angle", 1, Q("-12 deg")),
    Sketcher.Constraint("Angle", 2, Q("-45 deg")),
    Sketcher.Constraint("Angle", 4, Q("-67.5 deg")),
    Sketcher.Constraint("DistanceY", 0, 1, 0, 2, Q("0.245 in")),
    Sketcher.Constraint("DistanceY", 4, 2, 0, 2, Q("0.16 in")),
    Sketcher.Constraint("DistanceX", 1, 2, -1, 1, Q("1.207 in")),
    Sketcher.Constraint("DistanceX", 3, 2, -1, 1, Q("0.753 in")),
    Sketcher.Constraint("DistanceX", 3, 1, 3, 2, Q("10.771639 mm")),
])
groove5 = body.newObject("PartDesign::Groove", "Groove004")
groove5.Profile = sketch9
groove5.ReferenceAxis = (sketch9, ["H_Axis"])
groove5.Angle = 360

# Sketch on YZ plane
sketch10 = body.newObject("Sketcher::SketchObject", "Sketch009")
sketch10.AttachmentSupport = (doc.getObject("YZ_Plane"), [""])
sketch10.MapMode = "FlatFace"
sketch10.addGeometry([
    Part.Circle(Vector(0, 0, 0), Vector(0, 0, 1), 56),
    Part.Circle(Vector(0, 0, 0), Vector(0, 0, 1), 36),
], False)
sketch10.addConstraint([
    Sketcher.Constraint("Coincident", 0, 3, -1, 1),
    Sketcher.Constraint("Coincident", 1, 3, -1, 1),
    Sketcher.Constraint("Diameter", 0, Q("4.4 in")),
    Sketcher.Constraint("Diameter", 1, Q("2.8 in")),
])
pad3 = body.newObject("PartDesign::Pad", "Pad002")
pad3.Profile = sketch10
pad3.Length = Q("0.2 in")

# Sketch on XZ plane
sketch11 = body.newObject("Sketcher::SketchObject", "Sketch010")
sketch11.AttachmentSupport = (doc.getObject("XZ_Plane"), [""])
sketch11.MapMode = "FlatFace"
sketch11.AttachmentOffset = App.Placement(Vector(0, 0, -39.893118), App.Rotation())
add_polygon(sketch11, [(9, 17), (0, 17), (0, 23), (5, 23)])  # lines 0-3
sketch11.addGeometry(Part.LineSegment(Vector(0, 17, 0), Vector(9, 17, 0)), True)  # axis
sketch11.addConstraint([
    Sketcher.Constraint("Horizontal", 0),
    Sketcher.Constraint("Vertical", 1),
    Sketcher.Constraint("Horizontal", 2),
    Sketcher.Constraint("Horizontal", 4),
    Sketcher.Constraint("Coincident", 4, 1, 0, 2),
    Sketcher.Constraint("PointOnObject", 0, 2, -2),
    Sketcher.Constraint("Equal", 0, 4),
    Sketcher.Constraint("DistanceX", 2, 1, 2, 2, Q("0.2 in")),
    Sketcher.Constraint("Angle", 3, Q("-59 deg")),
    Sketcher.Constraint("DistanceY", 1, 1, 1, 2, Q("0.25 in")),
    Sketcher.Constraint("DistanceY", -1, 1, 0, 2, Q("16.524271 mm")),
])
groove6 = body.newObject("PartDesign::Groove", "Groove005")
groove6.Profile = sketch11
groove6.ReferenceAxis = (sketch11, ["Axis0"])
groove6.Angle = 360
doc.recompute()

polarpattern2 = body.newObject("PartDesign::PolarPattern", "PolarPattern001")
polarpattern2.Originals = [groove6]
polarpattern2.Axis = (doc.getObject("X_Axis"), [""])
polarpattern2.Angle = 360
polarpattern2.Occurrences = 8
body.Tip = polarpattern2
body2 = doc.addObject("PartDesign::Body", "Body001")

# Sketch on YZ plane
sketch12 = body2.newObject("Sketcher::SketchObject", "Sketch011")
sketch12.AttachmentSupport = (doc.getObject("YZ_Plane001"), [""])
sketch12.MapMode = "FlatFace"
sketch12.AttachmentOffset = App.Placement(Vector(0, 0, 56.863005), App.Rotation())
sketch12.addGeometry([
    Part.Circle(Vector(0, 0, 0), Vector(0, 0, 1), 56),
    Part.Circle(Vector(0, 0, 0), Vector(0, 0, 1), 36),
], False)
sketch12.addConstraint([
    Sketcher.Constraint("Coincident", 0, 3, -1, 1),
    Sketcher.Constraint("Coincident", 1, 3, -1, 1),
    Sketcher.Constraint("Diameter", 0, Q("4.4 in")),
    Sketcher.Constraint("Diameter", 1, Q("2.8 in")),
])
pad4 = body2.newObject("PartDesign::Pad", "Pad003")
pad4.Profile = sketch12
pad4.Length = Q("0.2 in")
pad4.Reversed = True

# Sketch on XZ plane
sketch13 = body2.newObject("Sketcher::SketchObject", "Sketch012")
sketch13.AttachmentSupport = (doc.getObject("XZ_Plane001"), [""])
sketch13.MapMode = "FlatFace"
sketch13.AttachmentOffset = App.Placement(Vector(0, 0, -39.893118), App.Rotation())
add_polygon(sketch13, [(48, 17), (57, 17), (57, 10), (52, 10)])  # lines 0-3
sketch13.addGeometry(Part.LineSegment(Vector(57, 17, 0), Vector(48, 17, 0)), True)  # axis
sketch13.addConstraint([
    Sketcher.Constraint("Horizontal", 0),
    Sketcher.Constraint("Vertical", 1),
    Sketcher.Constraint("Horizontal", 2),
    Sketcher.Constraint("Horizontal", 4),
    Sketcher.Constraint("Coincident", 4, 1, 0, 2),
    Sketcher.Constraint("Equal", 0, 4),
    Sketcher.Constraint("DistanceX", 2, 2, 2, 1, Q("0.2 in")),
    Sketcher.Constraint("Angle", 3, Q("121 deg")),
    Sketcher.Constraint("DistanceY", 1, 2, 1, 1, Q("0.25 in")),
    Sketcher.Constraint("DistanceY", -1, 1, 0, 2, Q("16.524271 mm")),
    Sketcher.Constraint("DistanceX", -1, 1, 3, 2, Q("47.96754 mm")),
])
groove7 = body2.newObject("PartDesign::Groove", "Groove006")
groove7.Profile = sketch13
groove7.ReferenceAxis = (sketch13, ["Axis0"])
groove7.Angle = 360
doc.recompute()

polarpattern3 = body2.newObject("PartDesign::PolarPattern", "PolarPattern002")
polarpattern3.Originals = [groove7]
polarpattern3.Axis = (doc.getObject("X_Axis001"), [""])
polarpattern3.Angle = 360
polarpattern3.Occurrences = 8
body2.Tip = polarpattern3

doc.recompute()
